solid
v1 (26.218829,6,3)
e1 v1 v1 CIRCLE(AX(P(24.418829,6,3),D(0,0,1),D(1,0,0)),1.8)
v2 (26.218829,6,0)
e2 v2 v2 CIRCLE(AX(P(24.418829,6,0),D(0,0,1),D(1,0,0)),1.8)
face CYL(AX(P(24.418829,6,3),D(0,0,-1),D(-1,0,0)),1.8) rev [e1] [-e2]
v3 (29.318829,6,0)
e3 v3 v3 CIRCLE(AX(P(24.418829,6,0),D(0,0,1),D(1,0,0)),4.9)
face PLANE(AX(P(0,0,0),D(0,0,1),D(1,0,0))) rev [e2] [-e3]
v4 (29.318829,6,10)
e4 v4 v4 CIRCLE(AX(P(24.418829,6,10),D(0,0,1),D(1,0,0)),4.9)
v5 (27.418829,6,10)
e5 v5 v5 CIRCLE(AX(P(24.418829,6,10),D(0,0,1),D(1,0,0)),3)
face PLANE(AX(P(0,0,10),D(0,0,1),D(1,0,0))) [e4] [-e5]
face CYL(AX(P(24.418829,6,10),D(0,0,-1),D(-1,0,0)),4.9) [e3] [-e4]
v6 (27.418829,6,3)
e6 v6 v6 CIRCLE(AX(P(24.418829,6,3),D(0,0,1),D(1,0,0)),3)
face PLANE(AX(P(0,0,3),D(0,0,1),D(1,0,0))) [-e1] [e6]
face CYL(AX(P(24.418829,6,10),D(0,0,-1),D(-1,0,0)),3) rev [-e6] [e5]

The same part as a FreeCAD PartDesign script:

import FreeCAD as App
import Part
import Sketcher
from FreeCAD import Vector

doc = App.newDocument("Part")
body = doc.addObject("PartDesign::Body", "Body")

# Sketch on XY plane
sketch1 = body.newObject("Sketcher::SketchObject", "Sketch")
sketch1.AttachmentSupport = (doc.getObject("XY_Plane"), [""])
sketch1.MapMode = "FlatFace"
sketch1.addGeometry([
    Part.Circle(Vector(24.418829, 6, 0), Vector(0, 0, 1), 4.9),
    Part.Circle(Vector(24.418829, 6, 0), Vector(0, 0, 1), 3),
], False)
sketch1.addConstraint([
    Sketcher.Constraint("Coincident", 1, 3, 0, 3),
    Sketcher.Constraint("Diameter", 1, 6.0),
    Sketcher.Constraint("Diameter", 0, 9.8),
    Sketcher.Constraint("DistanceY", -1, 1, 0, 3, 6.0),
    Sketcher.Constraint("DistanceX", -1, 1, 0, 3, 24.418829),
])
pad1 = body.newObject("PartDesign::Pad", "Pad")
pad1.Profile = sketch1
pad1.Length = 10

# Sketch on XY plane
sketch2 = body.newObject("Sketcher::SketchObject", "Sketch001")
sketch2.AttachmentSupport = (doc.getObject("XY_Plane"), [""])
sketch2.MapMode = "FlatFace"
sketch2.addGeometry([
    Part.Circle(Vector(24.418829, 6, 0), Vector(0, 0, 1), 3),
    Part.Circle(Vector(24.418829, 6, 0), Vector(0, 0, 1), 1.8),
], False)
sketch2.addConstraint([
    Sketcher.Constraint("Coincident", 1, 3, 0, 3),
    Sketcher.Constraint("Diameter", 0, 6.0),
    Sketcher.Constraint("Diameter", 1, 3.6),
    Sketcher.Constraint("DistanceY", -1, 1, 0, 3, 6.0),
    Sketcher.Constraint("DistanceX", -1, 1, 0, 3, 24.418829),
])
pad2 = body.newObject("PartDesign::Pad", "Pad001")
pad2.Profile = sketch2
pad2.Length = 3

doc.recompute()
